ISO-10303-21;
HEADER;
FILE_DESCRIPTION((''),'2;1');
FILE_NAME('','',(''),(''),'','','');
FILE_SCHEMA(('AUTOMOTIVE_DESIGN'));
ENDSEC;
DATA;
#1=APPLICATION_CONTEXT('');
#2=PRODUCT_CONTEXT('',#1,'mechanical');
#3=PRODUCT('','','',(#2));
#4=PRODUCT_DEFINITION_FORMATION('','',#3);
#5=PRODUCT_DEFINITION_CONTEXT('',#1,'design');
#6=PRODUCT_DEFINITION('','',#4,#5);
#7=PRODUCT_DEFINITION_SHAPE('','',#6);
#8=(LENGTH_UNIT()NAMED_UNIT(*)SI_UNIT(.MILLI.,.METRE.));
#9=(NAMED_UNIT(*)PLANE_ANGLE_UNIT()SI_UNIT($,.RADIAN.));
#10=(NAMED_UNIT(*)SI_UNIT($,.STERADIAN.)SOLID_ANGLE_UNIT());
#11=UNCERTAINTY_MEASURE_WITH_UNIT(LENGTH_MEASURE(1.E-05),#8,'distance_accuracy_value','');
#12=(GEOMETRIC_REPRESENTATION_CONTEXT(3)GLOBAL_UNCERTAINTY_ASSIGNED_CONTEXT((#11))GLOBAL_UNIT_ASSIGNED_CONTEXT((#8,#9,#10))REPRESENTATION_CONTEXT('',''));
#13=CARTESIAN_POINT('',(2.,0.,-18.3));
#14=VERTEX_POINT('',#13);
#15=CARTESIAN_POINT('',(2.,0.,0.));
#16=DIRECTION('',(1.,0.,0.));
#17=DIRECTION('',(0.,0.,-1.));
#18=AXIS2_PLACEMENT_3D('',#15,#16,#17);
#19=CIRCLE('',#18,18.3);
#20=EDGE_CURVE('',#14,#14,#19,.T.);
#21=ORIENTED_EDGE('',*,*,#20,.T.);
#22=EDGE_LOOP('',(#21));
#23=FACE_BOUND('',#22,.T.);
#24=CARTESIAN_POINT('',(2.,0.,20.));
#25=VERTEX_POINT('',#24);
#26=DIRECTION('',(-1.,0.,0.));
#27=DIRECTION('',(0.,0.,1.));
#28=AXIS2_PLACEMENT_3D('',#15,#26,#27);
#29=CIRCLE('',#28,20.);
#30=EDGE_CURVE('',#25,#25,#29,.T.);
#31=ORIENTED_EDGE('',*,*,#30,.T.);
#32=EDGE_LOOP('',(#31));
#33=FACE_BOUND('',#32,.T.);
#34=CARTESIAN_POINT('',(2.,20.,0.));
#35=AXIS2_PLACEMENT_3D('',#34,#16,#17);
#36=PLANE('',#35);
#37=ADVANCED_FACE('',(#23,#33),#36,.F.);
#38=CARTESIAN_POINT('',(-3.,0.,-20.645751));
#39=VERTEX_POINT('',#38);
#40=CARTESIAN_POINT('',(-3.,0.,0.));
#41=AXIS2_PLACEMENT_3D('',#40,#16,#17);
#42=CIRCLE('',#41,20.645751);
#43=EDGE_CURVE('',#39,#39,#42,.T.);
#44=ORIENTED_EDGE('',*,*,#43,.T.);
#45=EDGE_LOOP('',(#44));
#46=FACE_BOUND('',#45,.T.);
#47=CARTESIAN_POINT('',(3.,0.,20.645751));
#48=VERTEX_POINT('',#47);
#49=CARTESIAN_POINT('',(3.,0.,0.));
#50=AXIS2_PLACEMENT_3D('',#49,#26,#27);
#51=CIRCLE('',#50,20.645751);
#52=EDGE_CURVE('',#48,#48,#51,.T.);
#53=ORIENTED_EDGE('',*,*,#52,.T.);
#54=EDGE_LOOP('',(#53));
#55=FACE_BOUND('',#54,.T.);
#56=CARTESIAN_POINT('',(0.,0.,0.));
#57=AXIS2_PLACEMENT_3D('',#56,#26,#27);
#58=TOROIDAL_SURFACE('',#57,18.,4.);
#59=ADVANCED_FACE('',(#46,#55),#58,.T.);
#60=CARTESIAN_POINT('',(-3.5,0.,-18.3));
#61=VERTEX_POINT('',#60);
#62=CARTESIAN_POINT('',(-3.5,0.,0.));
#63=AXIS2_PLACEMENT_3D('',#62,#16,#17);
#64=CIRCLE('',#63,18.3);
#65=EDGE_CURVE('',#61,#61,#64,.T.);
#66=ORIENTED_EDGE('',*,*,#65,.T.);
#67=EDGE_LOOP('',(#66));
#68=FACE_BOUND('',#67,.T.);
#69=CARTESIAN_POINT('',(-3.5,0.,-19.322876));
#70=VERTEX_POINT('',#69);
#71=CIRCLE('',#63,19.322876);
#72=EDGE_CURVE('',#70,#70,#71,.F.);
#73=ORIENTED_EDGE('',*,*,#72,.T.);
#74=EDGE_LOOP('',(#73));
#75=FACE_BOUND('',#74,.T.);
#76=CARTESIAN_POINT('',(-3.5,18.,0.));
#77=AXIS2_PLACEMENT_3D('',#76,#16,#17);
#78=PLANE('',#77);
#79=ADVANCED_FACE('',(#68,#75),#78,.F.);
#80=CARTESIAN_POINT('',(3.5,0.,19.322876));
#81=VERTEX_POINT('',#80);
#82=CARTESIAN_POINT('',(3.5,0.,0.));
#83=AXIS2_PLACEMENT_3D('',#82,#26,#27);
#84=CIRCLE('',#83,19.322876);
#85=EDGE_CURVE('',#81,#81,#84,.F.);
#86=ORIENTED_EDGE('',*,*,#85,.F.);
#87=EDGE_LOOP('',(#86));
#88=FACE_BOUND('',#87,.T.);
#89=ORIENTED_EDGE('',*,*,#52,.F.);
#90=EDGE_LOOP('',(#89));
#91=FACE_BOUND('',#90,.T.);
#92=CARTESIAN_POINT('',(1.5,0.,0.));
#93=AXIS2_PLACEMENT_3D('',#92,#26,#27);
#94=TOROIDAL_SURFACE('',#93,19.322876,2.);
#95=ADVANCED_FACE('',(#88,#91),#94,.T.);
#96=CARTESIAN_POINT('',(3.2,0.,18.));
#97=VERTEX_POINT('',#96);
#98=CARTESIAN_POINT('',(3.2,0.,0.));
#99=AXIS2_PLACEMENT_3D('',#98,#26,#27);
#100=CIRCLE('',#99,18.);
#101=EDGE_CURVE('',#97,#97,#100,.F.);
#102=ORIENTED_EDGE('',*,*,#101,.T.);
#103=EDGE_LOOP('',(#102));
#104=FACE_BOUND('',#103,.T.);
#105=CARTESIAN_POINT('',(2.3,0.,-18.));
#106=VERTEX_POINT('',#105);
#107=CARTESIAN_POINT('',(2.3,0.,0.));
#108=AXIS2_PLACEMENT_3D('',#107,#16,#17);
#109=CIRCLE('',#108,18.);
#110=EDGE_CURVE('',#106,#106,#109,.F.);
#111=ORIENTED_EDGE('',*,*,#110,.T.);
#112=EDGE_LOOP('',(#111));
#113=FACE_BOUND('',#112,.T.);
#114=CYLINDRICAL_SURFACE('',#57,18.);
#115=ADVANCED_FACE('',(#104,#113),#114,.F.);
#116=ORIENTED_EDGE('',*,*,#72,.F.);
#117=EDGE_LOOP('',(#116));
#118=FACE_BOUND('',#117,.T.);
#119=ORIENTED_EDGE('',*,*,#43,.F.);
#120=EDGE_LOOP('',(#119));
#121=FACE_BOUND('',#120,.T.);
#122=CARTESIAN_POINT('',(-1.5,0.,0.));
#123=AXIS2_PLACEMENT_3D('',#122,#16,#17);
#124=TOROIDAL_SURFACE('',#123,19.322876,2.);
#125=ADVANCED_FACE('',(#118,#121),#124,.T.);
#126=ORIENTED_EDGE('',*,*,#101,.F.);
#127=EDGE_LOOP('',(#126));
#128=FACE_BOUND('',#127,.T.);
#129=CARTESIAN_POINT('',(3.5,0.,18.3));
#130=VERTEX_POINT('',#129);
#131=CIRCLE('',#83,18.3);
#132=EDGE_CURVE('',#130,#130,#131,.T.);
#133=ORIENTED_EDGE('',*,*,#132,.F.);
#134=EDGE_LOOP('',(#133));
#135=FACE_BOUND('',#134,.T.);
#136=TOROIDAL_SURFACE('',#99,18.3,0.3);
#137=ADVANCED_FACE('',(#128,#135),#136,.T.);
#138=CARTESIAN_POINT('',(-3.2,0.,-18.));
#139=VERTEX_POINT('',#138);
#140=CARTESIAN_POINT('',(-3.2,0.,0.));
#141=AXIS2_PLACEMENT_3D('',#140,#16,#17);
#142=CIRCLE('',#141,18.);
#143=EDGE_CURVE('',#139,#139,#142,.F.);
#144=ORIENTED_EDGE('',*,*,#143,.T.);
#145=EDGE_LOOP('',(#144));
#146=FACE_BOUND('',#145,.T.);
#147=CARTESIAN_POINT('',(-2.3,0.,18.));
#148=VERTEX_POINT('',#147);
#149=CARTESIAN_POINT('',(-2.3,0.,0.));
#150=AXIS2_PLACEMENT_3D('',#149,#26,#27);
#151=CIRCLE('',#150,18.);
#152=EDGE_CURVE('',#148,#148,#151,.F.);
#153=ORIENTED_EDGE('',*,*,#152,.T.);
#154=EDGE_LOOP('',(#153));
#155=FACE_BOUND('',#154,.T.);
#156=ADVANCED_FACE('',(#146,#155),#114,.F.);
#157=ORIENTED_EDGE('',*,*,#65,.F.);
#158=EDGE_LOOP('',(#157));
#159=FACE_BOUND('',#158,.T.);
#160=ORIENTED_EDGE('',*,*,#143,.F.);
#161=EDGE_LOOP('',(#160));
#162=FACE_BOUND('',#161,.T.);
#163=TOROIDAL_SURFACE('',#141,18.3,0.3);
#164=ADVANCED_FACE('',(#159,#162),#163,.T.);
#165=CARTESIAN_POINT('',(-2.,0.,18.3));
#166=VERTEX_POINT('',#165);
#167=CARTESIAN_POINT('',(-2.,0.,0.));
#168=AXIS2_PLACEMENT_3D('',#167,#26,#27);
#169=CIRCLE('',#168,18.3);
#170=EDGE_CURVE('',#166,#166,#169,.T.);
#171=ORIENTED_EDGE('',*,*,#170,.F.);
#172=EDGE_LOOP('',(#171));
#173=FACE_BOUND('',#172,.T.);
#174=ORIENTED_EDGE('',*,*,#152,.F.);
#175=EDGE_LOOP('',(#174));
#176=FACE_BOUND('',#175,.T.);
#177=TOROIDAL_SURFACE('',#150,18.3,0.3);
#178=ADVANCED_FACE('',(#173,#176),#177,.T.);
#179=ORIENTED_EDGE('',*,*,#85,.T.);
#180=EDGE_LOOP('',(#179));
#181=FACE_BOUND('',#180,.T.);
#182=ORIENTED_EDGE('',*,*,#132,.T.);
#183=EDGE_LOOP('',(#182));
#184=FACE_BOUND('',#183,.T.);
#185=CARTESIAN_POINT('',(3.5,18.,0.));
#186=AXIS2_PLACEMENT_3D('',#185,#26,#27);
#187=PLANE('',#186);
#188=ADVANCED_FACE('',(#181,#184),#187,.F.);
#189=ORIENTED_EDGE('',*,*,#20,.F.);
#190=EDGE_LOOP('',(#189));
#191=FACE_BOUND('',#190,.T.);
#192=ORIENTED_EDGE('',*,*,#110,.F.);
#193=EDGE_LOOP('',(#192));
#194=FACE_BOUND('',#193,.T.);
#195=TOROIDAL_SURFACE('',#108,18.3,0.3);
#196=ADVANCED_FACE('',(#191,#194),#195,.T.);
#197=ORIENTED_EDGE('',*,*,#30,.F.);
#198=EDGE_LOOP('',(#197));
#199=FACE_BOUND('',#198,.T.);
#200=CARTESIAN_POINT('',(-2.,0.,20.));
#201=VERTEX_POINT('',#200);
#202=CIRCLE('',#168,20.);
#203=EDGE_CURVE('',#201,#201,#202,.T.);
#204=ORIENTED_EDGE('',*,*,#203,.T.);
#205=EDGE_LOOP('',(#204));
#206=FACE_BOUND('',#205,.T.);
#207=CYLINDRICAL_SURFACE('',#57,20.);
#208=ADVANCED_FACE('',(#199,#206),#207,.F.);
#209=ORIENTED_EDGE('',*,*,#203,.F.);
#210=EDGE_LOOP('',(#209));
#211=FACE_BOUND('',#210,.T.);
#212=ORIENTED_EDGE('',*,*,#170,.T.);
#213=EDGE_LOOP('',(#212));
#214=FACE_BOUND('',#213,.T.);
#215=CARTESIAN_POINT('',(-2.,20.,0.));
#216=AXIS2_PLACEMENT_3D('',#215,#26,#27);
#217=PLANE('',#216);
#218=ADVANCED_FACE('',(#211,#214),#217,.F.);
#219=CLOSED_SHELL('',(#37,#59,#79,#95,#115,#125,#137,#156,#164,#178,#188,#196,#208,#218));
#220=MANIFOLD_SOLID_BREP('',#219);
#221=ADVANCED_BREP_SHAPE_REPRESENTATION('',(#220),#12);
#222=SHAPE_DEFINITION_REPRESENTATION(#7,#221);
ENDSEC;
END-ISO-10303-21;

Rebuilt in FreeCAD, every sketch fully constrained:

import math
import FreeCAD as App
import Part
import Sketcher

V = App.Vector


def edges_at(feature, points):
    """Names of the edges that pass closest to the given points."""
    edges = feature.Shape.Edges
    near = lambda p: min(range(len(edges)), key=lambda i: edges[i].distToShape(Part.Vertex(*p))[0])
    return sorted({f"Edge{near(p) + 1}" for p in points})

doc = App.newDocument("Part")
body = doc.addObject("PartDesign::Body", "Body")

# Sketch on XY plane
sketch1 = body.newObject("Sketcher::SketchObject", "Sketch")
sketch1.AttachmentSupport = (doc.getObject("XY_Plane"), [""])
sketch1.MapMode = "FlatFace"
sketch1.addGeometry(Part.LineSegment(V(-2, 20, 0), V(2, 20, 0)), False)
sketch1.addGeometry(Part.LineSegment(V(2, 20, 0), V(2, 18, 0)), False)
sketch1.addGeometry(Part.LineSegment(V(2, 18, 0), V(3.5, 18, 0)), False)
sketch1.addGeometry(Part.LineSegment(V(3.5, 18, 0), V(3.5, 19.9, 0)), False)
sketch1.addGeometry(Part.ArcOfCircle(Part.Circle(V(0, 18, 0), V(0, 0, 1), 4), math.radians(29), math.radians(151)), False)
sketch1.addGeometry(Part.LineSegment(V(-3.5, 19.9, 0), V(-3.5, 18, 0)), False)
sketch1.addGeometry(Part.LineSegment(V(-3.5, 18, 0), V(-2, 18, 0)), False)
sketch1.addGeometry(Part.LineSegment(V(-2, 18, 0), V(-2, 20, 0)), False)
sketch1.addConstraint(Sketcher.Constraint("Coincident", 0, 2, 1, 1))
sketch1.addConstraint(Sketcher.Constraint("Coincident", 1, 2, 2, 1))
sketch1.addConstraint(Sketcher.Constraint("Coincident", 2, 2, 3, 1))
sketch1.addConstraint(Sketcher.Constraint("Coincident", 3, 2, 4, 1))
sketch1.addConstraint(Sketcher.Constraint("Coincident", 4, 2, 5, 1))
sketch1.addConstraint(Sketcher.Constraint("Coincident", 5, 2, 6, 1))
sketch1.addConstraint(Sketcher.Constraint("Coincident", 6, 2, 7, 1))
sketch1.addConstraint(Sketcher.Constraint("Coincident", 7, 2, 0, 1))
sketch1.addConstraint(Sketcher.Constraint("Horizontal", 0))
sketch1.addConstraint(Sketcher.Constraint("Vertical", 1))
sketch1.addConstraint(Sketcher.Constraint("Horizontal", 2))
sketch1.addConstraint(Sketcher.Constraint("Vertical", 3))
sketch1.addConstraint(Sketcher.Constraint("Vertical", 5))
sketch1.addConstraint(Sketcher.Constraint("Horizontal", 6))
sketch1.addConstraint(Sketcher.Constraint("Vertical", 7))
sketch1.addConstraint(Sketcher.Constraint("Symmetric", 3, 2, 4, 2, -2))
sketch1.addConstraint(Sketcher.Constraint("Symmetric", 1, 2, 6, 2, -2))
sketch1.addConstraint(Sketcher.Constraint("Horizontal", 4, 3, 1, 2))
sketch1.addConstraint(Sketcher.Constraint("Radius", 4, 4.0))
sketch1.addConstraint(Sketcher.Constraint("DistanceX", 0, 1, 0, 2, 4.0))
sketch1.addConstraint(Sketcher.Constraint("DistanceY", 1, 2, 1, 1, 2.0))
sketch1.addConstraint(Sketcher.Constraint("DistanceX", 2, 1, 2, 2, 1.5))
sketch1.addConstraint(Sketcher.Constraint("DistanceY", -1, 1, 4, 3, 18.0))
revolution = body.newObject("PartDesign::Revolution", "Revolution")
revolution.Profile = sketch1
revolution.ReferenceAxis = (sketch1, ["H_Axis"])
revolution.Angle = 360
doc.recompute()

fillet = body.newObject("PartDesign::Fillet", "Fillet")
fillet.Base = (revolution, edges_at(revolution, [(3.5, 0, -19.936), (-3.5, 0, -19.936)]))
fillet.Radius = 2
doc.recompute()

fillet2 = body.newObject("PartDesign::Fillet", "Fillet001")
fillet2.Base = (fillet, edges_at(fillet, [
    (3.5, 0, -18),
    (-3.5, 0, -18),
    (-2, 0, -18),
    (2, 0, -18),
]))
fillet2.Radius = 0.3

doc.recompute()
